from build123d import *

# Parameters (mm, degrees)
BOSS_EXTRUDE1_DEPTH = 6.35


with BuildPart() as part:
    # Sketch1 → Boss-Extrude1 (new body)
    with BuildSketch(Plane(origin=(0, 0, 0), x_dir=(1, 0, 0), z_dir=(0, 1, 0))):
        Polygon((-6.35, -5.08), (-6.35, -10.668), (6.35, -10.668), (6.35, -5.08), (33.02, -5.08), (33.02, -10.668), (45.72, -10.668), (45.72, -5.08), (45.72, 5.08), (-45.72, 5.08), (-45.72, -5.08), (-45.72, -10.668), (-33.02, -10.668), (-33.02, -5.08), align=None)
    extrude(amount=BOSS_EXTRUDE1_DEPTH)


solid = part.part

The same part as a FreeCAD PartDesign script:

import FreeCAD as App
import Part
import Sketcher

V = App.Vector
Q = App.Units.Quantity


def add_polygon(sketch, points):
    """Adds a closed chain of lines whose ends are joined by coincident constraints."""
    first, n = sketch.GeometryCount, len(points)
    for a, b in zip(points, points[1:] + points[:1]):
        sketch.addGeometry(Part.LineSegment(App.Vector(*a, 0), App.Vector(*b, 0)), False)
    for i in range(n):
        sketch.addConstraint(Sketcher.Constraint("Coincident", first + i, 2, first + (i + 1) % n, 1))

doc = App.newDocument("Part")
body = doc.addObject("PartDesign::Body", "Body")

sketch1 = body.newObject("Sketcher::SketchObject", "Sketch")
sketch1.AttachmentSupport = (doc.getObject("XZ_Plane"), [""])
sketch1.MapMode = "FlatFace"
add_polygon(sketch1, [(-6.35, 5.08), (-6.35, 10.668), (6.35, 10.668), (6.35, 5.08), (33.02, 5.08), (33.02, 10.668), (45.72, 10.668), (45.72, -5.08), (-45.72, -5.08), (-45.72, 10.668), (-33.02, 10.668), (-33.02, 5.08)])
sketch1.addConstraint(Sketcher.Constraint("Vertical", 0))
sketch1.addConstraint(Sketcher.Constraint("Horizontal", 1))
sketch1.addConstraint(Sketcher.Constraint("Vertical", 2))
sketch1.addConstraint(Sketcher.Constraint("Horizontal", 3))
sketch1.addConstraint(Sketcher.Constraint("Vertical", 4))
sketch1.addConstraint(Sketcher.Constraint("Horizontal", 5))
sketch1.addConstraint(Sketcher.Constraint("Vertical", 6))
sketch1.addConstraint(Sketcher.Constraint("Horizontal", 7))
sketch1.addConstraint(Sketcher.Constraint("Vertical", 8))
sketch1.addConstraint(Sketcher.Constraint("Horizontal", 9))
sketch1.addConstraint(Sketcher.Constraint("Vertical", 10))
sketch1.addConstraint(Sketcher.Constraint("Horizontal", 11))
sketch1.addConstraint(Sketcher.Constraint("Symmetric", 5, 2, 8, 2, -2))
sketch1.addConstraint(Sketcher.Constraint("Symmetric", 3, 2, 10, 2, -2))
sketch1.addConstraint(Sketcher.Constraint("Horizontal", 1, 2, 4, 2))
sketch1.addConstraint(Sketcher.Constraint("Equal", 1, 5))
sketch1.addConstraint(Sketcher.Constraint("Equal", 3, 11))
sketch1.addConstraint(Sketcher.Constraint("DistanceX", 1, 1, 1, 2, Q("0.5 in")))
sketch1.addConstraint(Sketcher.Constraint("DistanceX", 7, 2, 7, 1, Q("3.6 in")))
sketch1.addConstraint(Sketcher.Constraint("DistanceY", 0, 1, 0, 2, Q("0.22 in")))
sketch1.addConstraint(Sketcher.Constraint("DistanceY", 6, 2, 6, 1, Q("0.62 in")))
sketch1.addConstraint(Sketcher.Constraint("DistanceY", -1, 1, 2, 2, Q("0.2 in")))
pad1 = body.newObject("PartDesign::Pad", "Pad")
pad1.Profile = sketch1
pad1.Length = Q("0.25 in")
pad1.Reversed = True

doc.recompute()
